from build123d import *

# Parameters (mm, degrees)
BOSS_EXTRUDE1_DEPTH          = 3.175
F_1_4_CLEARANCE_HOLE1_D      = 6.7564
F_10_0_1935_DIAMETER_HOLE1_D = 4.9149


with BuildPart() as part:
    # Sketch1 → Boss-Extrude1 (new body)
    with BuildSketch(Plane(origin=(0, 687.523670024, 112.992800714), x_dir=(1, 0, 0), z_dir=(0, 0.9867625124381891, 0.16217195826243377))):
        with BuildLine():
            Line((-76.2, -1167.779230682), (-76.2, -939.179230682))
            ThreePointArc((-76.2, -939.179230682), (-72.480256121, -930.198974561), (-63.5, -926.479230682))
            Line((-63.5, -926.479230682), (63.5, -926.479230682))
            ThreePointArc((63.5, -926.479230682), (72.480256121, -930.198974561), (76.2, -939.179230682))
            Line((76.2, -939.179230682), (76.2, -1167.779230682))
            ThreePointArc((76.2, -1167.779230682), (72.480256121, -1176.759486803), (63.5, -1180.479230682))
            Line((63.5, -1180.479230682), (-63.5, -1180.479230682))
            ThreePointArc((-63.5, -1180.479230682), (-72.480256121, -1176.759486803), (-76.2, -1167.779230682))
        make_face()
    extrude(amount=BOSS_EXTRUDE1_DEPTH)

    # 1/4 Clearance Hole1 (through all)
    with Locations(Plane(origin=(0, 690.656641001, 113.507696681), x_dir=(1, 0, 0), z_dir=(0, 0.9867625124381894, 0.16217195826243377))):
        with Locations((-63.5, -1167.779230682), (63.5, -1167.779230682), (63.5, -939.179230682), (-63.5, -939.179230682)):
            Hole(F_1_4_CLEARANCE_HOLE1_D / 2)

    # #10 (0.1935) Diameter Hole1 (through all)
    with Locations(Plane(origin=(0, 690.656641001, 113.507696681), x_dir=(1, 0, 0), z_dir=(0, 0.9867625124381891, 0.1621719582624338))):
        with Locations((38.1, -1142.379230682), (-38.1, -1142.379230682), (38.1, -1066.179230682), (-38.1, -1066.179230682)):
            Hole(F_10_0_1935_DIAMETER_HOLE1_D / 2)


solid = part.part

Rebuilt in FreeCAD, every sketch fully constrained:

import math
import FreeCAD as App
import Part
import Sketcher

V = App.Vector
Q = App.Units.Quantity

doc = App.newDocument("Part")
body = doc.addObject("PartDesign::Body", "Body")

# Sketch on an angled plane
sketch1 = body.newObject("Sketcher::SketchObject", "Sketch")
sketch1.Placement = App.Placement(V(0, 687.52367, 112.992801), App.Rotation(V(1, 0, 0), V(0, 0.162171958, -0.986762512), V(0, 0.986762512, 0.162171958), "ZXY"))
sketch1.addGeometry([
    Part.LineSegment(V(-76, -939, 0), V(-76, -1168, 0)),  # 0
    Part.ArcOfCircle(Part.Circle(V(-64, -1168, 0), V(0, 0, 1), 13), math.radians(180), math.radians(270)),  # 1
    Part.LineSegment(V(-64, -1180, 0), V(64, -1180, 0)),  # 2
    Part.ArcOfCircle(Part.Circle(V(64, -1168, 0), V(0, 0, 1), 13), math.radians(-90), math.radians(0)),  # 3
    Part.LineSegment(V(76, -1168, 0), V(76, -939, 0)),  # 4
    Part.ArcOfCircle(Part.Circle(V(64, -939, 0), V(0, 0, 1), 13), math.radians(0), math.radians(90)),  # 5
    Part.LineSegment(V(64, -926, 0), V(-64, -926, 0)),  # 6
    Part.ArcOfCircle(Part.Circle(V(-64, -939, 0), V(0, 0, 1), 13), math.radians(90), math.radians(180)),  # 7
], False)
sketch1.addConstraint([
    Sketcher.Constraint("Tangent", 0, 2, 1, 1),
    Sketcher.Constraint("Tangent", 1, 2, 2, 1),
    Sketcher.Constraint("Tangent", 2, 2, 3, 1),
    Sketcher.Constraint("Tangent", 3, 2, 4, 1),
    Sketcher.Constraint("Tangent", 4, 2, 5, 1),
    Sketcher.Constraint("Tangent", 5, 2, 6, 1),
    Sketcher.Constraint("Tangent", 6, 2, 7, 1),
    Sketcher.Constraint("Tangent", 7, 2, 0, 1),
    Sketcher.Constraint("Vertical", 0),
    Sketcher.Constraint("Horizontal", 2),
    Sketcher.Constraint("Vertical", 4),
    Sketcher.Constraint("Horizontal", 6),
    Sketcher.Constraint("Equal", 1, 3),
    Sketcher.Constraint("Equal", 3, 5),
    Sketcher.Constraint("Equal", 5, 7),
    Sketcher.Constraint("Radius", 1, Q("0.5 in")),
    Sketcher.Constraint("DistanceX", 2, 1, 2, 2, Q("5 in")),
    Sketcher.Constraint("DistanceY", 0, 2, 0, 1, Q("9 in")),
    Sketcher.Constraint("DistanceX", 0, 2, -1, 1, Q("3 in")),
    Sketcher.Constraint("DistanceY", 1, 3, -1, 1, Q("1167.77923 mm")),
])
pad1 = body.newObject("PartDesign::Pad", "Pad")
pad1.Profile = sketch1
pad1.Length = Q("0.125 in")

# Sketch on an angled plane
sketch2 = body.newObject("Sketcher::SketchObject", "Sketch001")
sketch2.Placement = App.Placement(V(0, 690.656641, 113.507697), App.Rotation(V(1, 0, 0), V(0, 0.162171958, -0.986762512), V(0, 0.986762512, 0.162171958), "ZXY"))
sketch2.addGeometry([
    Part.Circle(V(-63.5, -1167.8, 0), V(0, 0, 1), 3.4),
    Part.Circle(V(63.5, -1167.8, 0), V(0, 0, 1), 3.4),
    Part.Circle(V(63.5, -939.2, 0), V(0, 0, 1), 3.4),
    Part.Circle(V(-63.5, -939.2, 0), V(0, 0, 1), 3.4),
], False)
sketch2.addConstraint([
    Sketcher.Constraint("Equal", 0, 1),
    Sketcher.Constraint("Equal", 1, 2),
    Sketcher.Constraint("Equal", 2, 3),
    Sketcher.Constraint("Symmetric", 0, 3, 1, 3, -2),
    Sketcher.Constraint("Symmetric", 2, 3, 3, 3, -2),
    Sketcher.Constraint("Vertical", 1, 3, 2, 3),
    Sketcher.Constraint("Diameter", 0, Q("0.266 in")),
    Sketcher.Constraint("DistanceX", 0, 3, 1, 3, Q("5 in")),
    Sketcher.Constraint("DistanceY", 1, 3, 2, 3, Q("9 in")),
    Sketcher.Constraint("DistanceY", 0, 3, -1, 1, Q("1167.77923 mm")),
])
doc.recompute()
hole = body.newObject("PartDesign::Hole", "Hole")
hole.Profile = sketch2
hole.ThreadType = "None"
hole.Diameter = Q("0.266 in")
hole.DepthType = "ThroughAll"

# Sketch on an angled plane
sketch3 = body.newObject("Sketcher::SketchObject", "Sketch002")
sketch3.Placement = App.Placement(V(0, 690.656641, 113.507697), App.Rotation(V(1, 0, 0), V(0, 0.162171958, -0.986762512), V(0, 0.986762512, 0.162171958), "ZXY"))
sketch3.addGeometry([
    Part.Circle(V(38.1, -1142.4, 0), V(0, 0, 1), 2.5),
    Part.Circle(V(-38.1, -1142.4, 0), V(0, 0, 1), 2.5),
    Part.Circle(V(38.1, -1066.2, 0), V(0, 0, 1), 2.5),
    Part.Circle(V(-38.1, -1066.2, 0), V(0, 0, 1), 2.5),
], False)
sketch3.addConstraint([
    Sketcher.Constraint("Equal", 0, 1),
    Sketcher.Constraint("Equal", 1, 2),
    Sketcher.Constraint("Equal", 2, 3),
    Sketcher.Constraint("Symmetric", 0, 3, 1, 3, -2),
    Sketcher.Constraint("Symmetric", 2, 3, 3, 3, -2),
    Sketcher.Constraint("Vertical", 0, 3, 2, 3),
    Sketcher.Constraint("DistanceX", 1, 3, 0, 3, Q("3 in")),
    Sketcher.Constraint("DistanceY", 0, 3, 2, 3, Q("3 in")),
    Sketcher.Constraint("Diameter", 0, Q("0.1935 in")),
    Sketcher.Constraint("DistanceY", 0, 3, -1, 1, Q("1142.37923 mm")),
])
doc.recompute()
hole2 = body.newObject("PartDesign::Hole", "Hole001")
hole2.Profile = sketch3
hole2.ThreadType = "None"
hole2.Diameter = Q("0.1935 in")
hole2.DepthType = "ThroughAll"

doc.recompute()
